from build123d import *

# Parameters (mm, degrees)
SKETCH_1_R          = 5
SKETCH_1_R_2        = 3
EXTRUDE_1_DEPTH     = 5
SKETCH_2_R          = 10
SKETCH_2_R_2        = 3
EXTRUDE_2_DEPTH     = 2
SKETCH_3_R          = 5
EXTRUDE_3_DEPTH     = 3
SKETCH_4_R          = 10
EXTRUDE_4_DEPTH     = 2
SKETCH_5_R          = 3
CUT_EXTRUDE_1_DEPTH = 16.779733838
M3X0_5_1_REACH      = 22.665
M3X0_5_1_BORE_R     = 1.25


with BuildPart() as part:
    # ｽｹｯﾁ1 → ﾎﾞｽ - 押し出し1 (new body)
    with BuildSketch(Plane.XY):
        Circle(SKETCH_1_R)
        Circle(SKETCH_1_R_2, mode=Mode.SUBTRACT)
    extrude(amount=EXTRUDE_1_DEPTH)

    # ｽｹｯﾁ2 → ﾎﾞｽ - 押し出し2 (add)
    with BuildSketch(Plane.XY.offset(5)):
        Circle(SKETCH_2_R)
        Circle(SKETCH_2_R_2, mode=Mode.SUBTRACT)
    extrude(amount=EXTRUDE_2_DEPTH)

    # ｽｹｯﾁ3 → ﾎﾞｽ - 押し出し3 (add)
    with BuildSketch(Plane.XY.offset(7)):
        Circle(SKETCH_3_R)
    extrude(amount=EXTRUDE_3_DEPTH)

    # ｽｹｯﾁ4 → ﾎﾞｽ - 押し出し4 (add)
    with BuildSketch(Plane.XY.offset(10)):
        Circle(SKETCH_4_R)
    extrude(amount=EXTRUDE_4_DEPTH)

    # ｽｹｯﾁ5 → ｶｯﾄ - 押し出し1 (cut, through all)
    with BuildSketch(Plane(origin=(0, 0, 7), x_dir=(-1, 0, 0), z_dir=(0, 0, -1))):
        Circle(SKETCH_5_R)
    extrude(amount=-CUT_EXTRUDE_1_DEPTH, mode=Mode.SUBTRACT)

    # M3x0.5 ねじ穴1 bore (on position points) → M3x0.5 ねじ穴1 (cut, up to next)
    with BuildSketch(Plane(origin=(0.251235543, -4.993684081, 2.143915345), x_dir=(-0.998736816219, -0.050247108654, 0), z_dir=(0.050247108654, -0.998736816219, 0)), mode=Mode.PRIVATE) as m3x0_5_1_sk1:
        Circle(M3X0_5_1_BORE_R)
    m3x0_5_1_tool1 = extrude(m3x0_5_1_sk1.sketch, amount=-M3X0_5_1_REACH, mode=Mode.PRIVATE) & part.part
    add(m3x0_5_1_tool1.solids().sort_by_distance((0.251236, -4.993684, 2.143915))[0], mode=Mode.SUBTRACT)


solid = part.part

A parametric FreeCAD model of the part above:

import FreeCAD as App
import Part
import Sketcher
from FreeCAD import Vector

doc = App.newDocument("Part")
body = doc.addObject("PartDesign::Body", "Body")

# Sketch on XY plane
sketch1 = body.newObject("Sketcher::SketchObject", "Sketch")
sketch1.AttachmentSupport = (doc.getObject("XY_Plane"), [""])
sketch1.MapMode = "FlatFace"
sketch1.addGeometry(Part.Circle(Vector(0, 0, 0), Vector(0, 0, 1), 5), False)
sketch1.addGeometry(Part.Circle(Vector(0, 0, 0), Vector(0, 0, 1), 3), False)
sketch1.addConstraint(Sketcher.Constraint("Coincident", 0, 3, -1, 1))
sketch1.addConstraint(Sketcher.Constraint("Coincident", 1, 3, -1, 1))
sketch1.addConstraint(Sketcher.Constraint("Diameter", 0, 10.0))
sketch1.addConstraint(Sketcher.Constraint("Diameter", 1, 6.0))
pad1 = body.newObject("PartDesign::Pad", "Pad")
pad1.Profile = sketch1
pad1.Length = 5

# Sketch on XY plane
sketch2 = body.newObject("Sketcher::SketchObject", "Sketch001")
sketch2.AttachmentSupport = (doc.getObject("XY_Plane"), [""])
sketch2.MapMode = "FlatFace"
sketch2.AttachmentOffset = App.Placement(Vector(0, 0, 5), App.Rotation())
sketch2.addGeometry(Part.Circle(Vector(0, 0, 0), Vector(0, 0, 1), 10), False)
sketch2.addGeometry(Part.Circle(Vector(0, 0, 0), Vector(0, 0, 1), 3), False)
sketch2.addConstraint(Sketcher.Constraint("Coincident", 0, 3, -1, 1))
sketch2.addConstraint(Sketcher.Constraint("Coincident", 1, 3, -1, 1))
sketch2.addConstraint(Sketcher.Constraint("Diameter", 0, 20.0))
sketch2.addConstraint(Sketcher.Constraint("Diameter", 1, 6.0))
pad2 = body.newObject("PartDesign::Pad", "Pad001")
pad2.Profile = sketch2
pad2.Length = 2

# Sketch on XY plane
sketch3 = body.newObject("Sketcher::SketchObject", "Sketch002")
sketch3.AttachmentSupport = (doc.getObject("XY_Plane"), [""])
sketch3.MapMode = "FlatFace"
sketch3.AttachmentOffset = App.Placement(Vector(0, 0, 7), App.Rotation())
sketch3.addGeometry(Part.Circle(Vector(0, 0, 0), Vector(0, 0, 1), 5), False)
sketch3.addConstraint(Sketcher.Constraint("Coincident", 0, 3, -1, 1))
sketch3.addConstraint(Sketcher.Constraint("Diameter", 0, 10.0))
pad3 = body.newObject("PartDesign::Pad", "Pad002")
pad3.Profile = sketch3
pad3.Length = 3

# Sketch on XY plane
sketch4 = body.newObject("Sketcher::SketchObject", "Sketch003")
sketch4.AttachmentSupport = (doc.getObject("XY_Plane"), [""])
sketch4.MapMode = "FlatFace"
sketch4.AttachmentOffset = App.Placement(Vector(0, 0, 10), App.Rotation())
sketch4.addGeometry(Part.Circle(Vector(0, 0, 0), Vector(0, 0, 1), 10), False)
sketch4.addConstraint(Sketcher.Constraint("Coincident", 0, 3, -1, 1))
sketch4.addConstraint(Sketcher.Constraint("Diameter", 0, 20.0))
pad4 = body.newObject("PartDesign::Pad", "Pad003")
pad4.Profile = sketch4
pad4.Length = 2

# Sketch on XY plane
sketch5 = body.newObject("Sketcher::SketchObject", "Sketch004")
sketch5.AttachmentSupport = (doc.getObject("XY_Plane"), [""])
sketch5.MapMode = "FlatFace"
sketch5.AttachmentOffset = App.Placement(Vector(0, 0, 7), App.Rotation())
sketch5.addGeometry(Part.Circle(Vector(0, 0, 0), Vector(0, 0, 1), 3), False)
sketch5.addConstraint(Sketcher.Constraint("Coincident", 0, 3, -1, 1))
sketch5.addConstraint(Sketcher.Constraint("Diameter", 0, 6.0))
pocket1 = body.newObject("PartDesign::Pocket", "Pocket")
pocket1.Profile = sketch5
pocket1.Type = "ThroughAll"
pocket1.Reversed = True

# Sketch on an angled plane
sketch6 = body.newObject("Sketcher::SketchObject", "Sketch005")
sketch6.Placement = App.Placement(Vector(0.251236, -4.993684, 2.143915), App.Rotation(Vector(-0.998736816, -0.050247109, 0), Vector(0, 0, -1), Vector(0.050247109, -0.998736816, 0), "ZXY"))
sketch6.addGeometry(Part.Circle(Vector(0, 0, 0), Vector(0, 0, 1), 1.2), False)
sketch6.addConstraint(Sketcher.Constraint("Coincident", 0, 3, -1, 1))
sketch6.addConstraint(Sketcher.Constraint("Diameter", 0, 2.5))
pocket2 = body.newObject("PartDesign::Pocket", "Pocket001")
pocket2.Profile = sketch6
pocket2.Type = "UpToFirst"

doc.recompute()
